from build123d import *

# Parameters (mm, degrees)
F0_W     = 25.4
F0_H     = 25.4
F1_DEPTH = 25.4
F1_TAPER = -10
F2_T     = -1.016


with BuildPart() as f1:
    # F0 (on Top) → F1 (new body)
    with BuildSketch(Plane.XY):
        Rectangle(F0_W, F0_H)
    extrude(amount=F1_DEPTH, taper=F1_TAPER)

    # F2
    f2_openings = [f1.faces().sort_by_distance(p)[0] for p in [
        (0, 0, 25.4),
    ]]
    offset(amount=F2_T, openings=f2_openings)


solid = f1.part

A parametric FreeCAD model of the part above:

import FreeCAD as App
import Part
import Sketcher
Q = App.Units.Quantity


def faces_at(feature, points):
    """Names of the faces that lie closest to the given points."""
    faces = feature.Shape.Faces
    near = lambda p: min(range(len(faces)), key=lambda i: faces[i].distToShape(Part.Vertex(*p))[0])
    return sorted({f"Face{near(p) + 1}" for p in points})

doc = App.newDocument("Part")
params = doc.addObject("Spreadsheet::Sheet", "Params")
for row, (alias, value) in enumerate([
    ("sketch1_width", "1 in"),
    ("pad1_length", "1 in"),
    ("pad1_taper", "10 deg"),
    ("thickness_wall", "0.04 in"),
], start=1):
    params.set(f"A{row}", alias)
    params.set(f"B{row}", "=" + value)
    params.setAlias(f"B{row}", alias)

body = doc.addObject("PartDesign::Body", "Body")

# Sketch on XY plane
sketch1 = body.newObject("Sketcher::SketchObject", "Sketch")
sketch1.AttachmentSupport = (doc.getObject("XY_Plane"), [""])
sketch1.MapMode = "FlatFace"
sketch1.addGeometry([
    Part.LineSegment(App.Vector(-13, 13, 0), App.Vector(-13, -13, 0)),
    Part.LineSegment(App.Vector(-13, -13, 0), App.Vector(13, -13, 0)),
    Part.LineSegment(App.Vector(13, -13, 0), App.Vector(13, 13, 0)),
    Part.LineSegment(App.Vector(13, 13, 0), App.Vector(-13, 13, 0)),
], False)
sketch1.addConstraint([
    Sketcher.Constraint("Coincident", 0, 2, 1, 1),
    Sketcher.Constraint("Coincident", 1, 2, 2, 1),
    Sketcher.Constraint("Coincident", 2, 2, 3, 1),
    Sketcher.Constraint("Coincident", 3, 2, 0, 1),
    Sketcher.Constraint("Vertical", 0),
    Sketcher.Constraint("Horizontal", 1),
    Sketcher.Constraint("Vertical", 2),
    Sketcher.Constraint("Horizontal", 3),
    Sketcher.Constraint("Symmetric", 0, 2, 2, 2, -1, 1),
    Sketcher.Constraint("Equal", 3, 0),
    Sketcher.Constraint("DistanceX", 1, 1, 1, 2, Q("1 in")),
])
sketch1.setExpression("Constraints[10]", "Params.sketch1_width")
pad1 = body.newObject("PartDesign::Pad", "Pad")
pad1.Profile = sketch1
pad1.setExpression("Length", "Params.pad1_length")
pad1.setExpression("TaperAngle", "Params.pad1_taper")
doc.recompute()

thickness = body.newObject("PartDesign::Thickness", "Thickness")
thickness.Base = (pad1, faces_at(pad1, [(0, 0, 25.4)]))
thickness.setExpression("Value", "Params.thickness_wall")
thickness.Reversed = True
thickness.Join = "Arc"

doc.recompute()
